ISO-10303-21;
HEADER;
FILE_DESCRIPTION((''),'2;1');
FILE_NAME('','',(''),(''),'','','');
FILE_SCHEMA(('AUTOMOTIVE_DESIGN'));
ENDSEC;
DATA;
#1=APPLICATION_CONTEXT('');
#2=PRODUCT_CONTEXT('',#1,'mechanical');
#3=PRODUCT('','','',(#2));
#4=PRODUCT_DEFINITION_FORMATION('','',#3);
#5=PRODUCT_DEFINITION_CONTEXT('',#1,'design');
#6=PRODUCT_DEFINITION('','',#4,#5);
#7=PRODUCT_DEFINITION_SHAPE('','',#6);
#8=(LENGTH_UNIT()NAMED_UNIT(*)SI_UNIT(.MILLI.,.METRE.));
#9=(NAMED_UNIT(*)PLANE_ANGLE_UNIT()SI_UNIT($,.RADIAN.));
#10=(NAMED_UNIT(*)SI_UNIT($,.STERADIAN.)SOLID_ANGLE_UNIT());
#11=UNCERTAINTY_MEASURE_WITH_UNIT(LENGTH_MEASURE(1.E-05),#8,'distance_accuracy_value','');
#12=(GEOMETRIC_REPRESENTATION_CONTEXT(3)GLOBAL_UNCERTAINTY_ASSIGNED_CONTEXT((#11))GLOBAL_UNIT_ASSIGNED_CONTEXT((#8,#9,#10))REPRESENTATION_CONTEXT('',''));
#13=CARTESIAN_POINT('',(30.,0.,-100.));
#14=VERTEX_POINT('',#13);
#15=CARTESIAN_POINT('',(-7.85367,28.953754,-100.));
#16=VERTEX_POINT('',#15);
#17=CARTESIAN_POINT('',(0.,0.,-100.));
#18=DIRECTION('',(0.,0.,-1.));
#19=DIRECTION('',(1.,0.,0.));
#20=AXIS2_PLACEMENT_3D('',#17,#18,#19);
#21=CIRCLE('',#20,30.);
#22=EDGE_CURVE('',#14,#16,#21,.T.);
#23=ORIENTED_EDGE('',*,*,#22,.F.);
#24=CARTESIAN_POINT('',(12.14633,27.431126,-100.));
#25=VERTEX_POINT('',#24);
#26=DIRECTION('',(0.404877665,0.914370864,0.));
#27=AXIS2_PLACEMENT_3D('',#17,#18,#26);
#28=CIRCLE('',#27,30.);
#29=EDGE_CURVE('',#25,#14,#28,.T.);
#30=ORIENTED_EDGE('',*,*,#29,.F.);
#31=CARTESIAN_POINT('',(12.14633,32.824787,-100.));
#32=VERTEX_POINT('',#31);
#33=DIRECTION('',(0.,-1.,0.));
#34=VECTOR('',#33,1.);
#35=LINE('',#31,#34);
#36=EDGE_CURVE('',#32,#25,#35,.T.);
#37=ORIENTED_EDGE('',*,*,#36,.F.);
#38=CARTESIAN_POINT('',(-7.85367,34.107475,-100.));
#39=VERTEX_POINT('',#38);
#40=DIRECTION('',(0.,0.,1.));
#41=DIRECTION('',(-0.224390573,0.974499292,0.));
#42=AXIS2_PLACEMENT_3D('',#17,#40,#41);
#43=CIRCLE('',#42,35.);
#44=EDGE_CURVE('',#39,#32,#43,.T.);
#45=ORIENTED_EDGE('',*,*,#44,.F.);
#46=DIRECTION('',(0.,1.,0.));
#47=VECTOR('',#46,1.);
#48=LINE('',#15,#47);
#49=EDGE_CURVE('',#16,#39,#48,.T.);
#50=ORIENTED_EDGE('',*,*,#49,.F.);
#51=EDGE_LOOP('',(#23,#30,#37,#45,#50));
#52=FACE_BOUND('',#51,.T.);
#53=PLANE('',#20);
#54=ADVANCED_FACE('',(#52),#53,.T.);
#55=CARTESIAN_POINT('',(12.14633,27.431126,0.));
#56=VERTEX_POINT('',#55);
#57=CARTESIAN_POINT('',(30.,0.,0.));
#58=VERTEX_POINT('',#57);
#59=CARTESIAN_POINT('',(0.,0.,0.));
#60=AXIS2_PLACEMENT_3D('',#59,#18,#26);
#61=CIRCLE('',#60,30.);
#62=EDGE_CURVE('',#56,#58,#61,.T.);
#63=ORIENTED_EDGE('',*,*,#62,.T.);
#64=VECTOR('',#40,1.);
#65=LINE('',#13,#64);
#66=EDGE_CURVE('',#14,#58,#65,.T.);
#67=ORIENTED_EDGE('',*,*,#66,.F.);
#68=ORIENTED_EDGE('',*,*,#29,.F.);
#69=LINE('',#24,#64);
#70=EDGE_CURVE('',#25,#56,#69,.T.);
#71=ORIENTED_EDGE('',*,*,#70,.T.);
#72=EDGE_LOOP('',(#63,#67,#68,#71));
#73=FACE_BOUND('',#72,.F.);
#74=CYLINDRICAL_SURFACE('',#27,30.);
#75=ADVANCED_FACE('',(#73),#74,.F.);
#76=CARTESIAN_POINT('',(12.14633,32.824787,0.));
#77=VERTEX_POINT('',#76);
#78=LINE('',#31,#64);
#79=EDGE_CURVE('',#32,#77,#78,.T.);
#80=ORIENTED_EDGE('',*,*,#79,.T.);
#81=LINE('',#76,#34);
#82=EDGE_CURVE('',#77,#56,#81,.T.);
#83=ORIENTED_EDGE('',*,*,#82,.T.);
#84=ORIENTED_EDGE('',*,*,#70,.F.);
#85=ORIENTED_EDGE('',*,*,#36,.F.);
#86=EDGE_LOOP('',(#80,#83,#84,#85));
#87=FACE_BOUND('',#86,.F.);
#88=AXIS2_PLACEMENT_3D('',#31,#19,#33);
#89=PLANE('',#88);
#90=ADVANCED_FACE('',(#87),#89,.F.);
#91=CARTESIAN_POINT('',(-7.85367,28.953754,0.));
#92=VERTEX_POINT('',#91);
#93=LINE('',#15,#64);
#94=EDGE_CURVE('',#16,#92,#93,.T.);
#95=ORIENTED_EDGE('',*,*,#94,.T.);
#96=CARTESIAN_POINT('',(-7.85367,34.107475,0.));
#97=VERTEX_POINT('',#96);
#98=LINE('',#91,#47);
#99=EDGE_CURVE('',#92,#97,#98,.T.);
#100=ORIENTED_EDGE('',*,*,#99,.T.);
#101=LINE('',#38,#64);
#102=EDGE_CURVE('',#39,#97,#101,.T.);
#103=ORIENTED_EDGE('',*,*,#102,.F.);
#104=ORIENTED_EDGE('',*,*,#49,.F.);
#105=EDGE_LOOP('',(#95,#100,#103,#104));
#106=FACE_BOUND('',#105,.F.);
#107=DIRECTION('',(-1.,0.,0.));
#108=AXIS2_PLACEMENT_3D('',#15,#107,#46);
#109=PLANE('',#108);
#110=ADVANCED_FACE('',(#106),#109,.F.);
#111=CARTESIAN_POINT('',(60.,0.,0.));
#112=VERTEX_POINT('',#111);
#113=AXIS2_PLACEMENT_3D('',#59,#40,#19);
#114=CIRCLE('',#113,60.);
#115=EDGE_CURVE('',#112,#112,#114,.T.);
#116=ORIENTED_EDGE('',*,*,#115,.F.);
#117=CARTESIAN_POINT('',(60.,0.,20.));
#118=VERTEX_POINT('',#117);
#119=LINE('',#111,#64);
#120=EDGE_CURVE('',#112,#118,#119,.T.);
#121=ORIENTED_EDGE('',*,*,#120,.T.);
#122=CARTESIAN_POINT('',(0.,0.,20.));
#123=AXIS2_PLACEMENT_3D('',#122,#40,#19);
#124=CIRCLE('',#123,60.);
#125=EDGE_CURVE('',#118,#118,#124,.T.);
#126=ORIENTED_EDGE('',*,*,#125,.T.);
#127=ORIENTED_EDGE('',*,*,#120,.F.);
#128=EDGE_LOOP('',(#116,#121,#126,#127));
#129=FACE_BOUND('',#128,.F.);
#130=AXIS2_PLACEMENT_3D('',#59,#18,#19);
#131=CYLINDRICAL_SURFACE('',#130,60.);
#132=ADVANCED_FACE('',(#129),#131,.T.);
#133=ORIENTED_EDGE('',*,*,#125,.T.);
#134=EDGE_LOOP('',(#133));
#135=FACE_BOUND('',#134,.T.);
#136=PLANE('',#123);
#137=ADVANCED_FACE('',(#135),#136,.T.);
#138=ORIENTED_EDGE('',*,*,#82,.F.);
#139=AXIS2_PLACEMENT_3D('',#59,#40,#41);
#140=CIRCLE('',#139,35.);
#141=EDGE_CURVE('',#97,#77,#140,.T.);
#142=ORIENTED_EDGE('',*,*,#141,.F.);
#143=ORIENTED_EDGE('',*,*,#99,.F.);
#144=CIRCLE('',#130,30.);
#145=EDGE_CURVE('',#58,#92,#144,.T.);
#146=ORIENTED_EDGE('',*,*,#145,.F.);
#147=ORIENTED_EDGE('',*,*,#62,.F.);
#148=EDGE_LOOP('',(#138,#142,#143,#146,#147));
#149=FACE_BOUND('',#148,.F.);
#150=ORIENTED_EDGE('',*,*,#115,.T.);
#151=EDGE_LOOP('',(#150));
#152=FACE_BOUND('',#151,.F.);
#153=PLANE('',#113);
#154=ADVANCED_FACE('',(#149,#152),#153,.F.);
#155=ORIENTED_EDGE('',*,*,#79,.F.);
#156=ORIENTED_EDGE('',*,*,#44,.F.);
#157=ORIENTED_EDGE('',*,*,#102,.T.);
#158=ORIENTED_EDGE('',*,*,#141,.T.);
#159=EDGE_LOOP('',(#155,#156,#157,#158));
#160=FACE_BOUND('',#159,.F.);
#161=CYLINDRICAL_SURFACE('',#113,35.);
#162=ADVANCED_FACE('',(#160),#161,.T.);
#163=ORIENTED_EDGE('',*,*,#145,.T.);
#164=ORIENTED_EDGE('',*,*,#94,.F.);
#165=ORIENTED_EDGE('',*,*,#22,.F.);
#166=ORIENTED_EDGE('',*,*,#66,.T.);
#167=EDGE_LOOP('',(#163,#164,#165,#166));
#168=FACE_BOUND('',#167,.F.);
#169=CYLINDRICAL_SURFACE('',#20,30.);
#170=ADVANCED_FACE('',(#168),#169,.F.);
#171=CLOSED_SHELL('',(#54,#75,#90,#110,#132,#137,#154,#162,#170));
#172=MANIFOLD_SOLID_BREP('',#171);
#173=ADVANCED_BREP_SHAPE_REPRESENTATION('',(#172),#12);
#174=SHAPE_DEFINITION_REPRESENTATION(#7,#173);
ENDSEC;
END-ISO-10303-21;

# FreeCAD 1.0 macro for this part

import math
import FreeCAD as App
import Part
import Sketcher

V = App.Vector
Q = App.Units.Quantity

doc = App.newDocument("Part")
params = doc.addObject("Spreadsheet::Sheet", "Params")
for row, (alias, value) in enumerate([
    ("sketch1_diameter", "120 mm"),
    ("pad1_length", "20 mm"),
    ("sketch2_diameter", "70 mm"),
    ("pad2_length", "100 mm"),
    ("sketch3_radius", "30 mm"),
    ("sketch3_radius2", "35 mm"),
    ("pocket1_length", "100 mm"),
], start=1):
    params.set(f"A{row}", alias)
    params.set(f"B{row}", "=" + value)
    params.setAlias(f"B{row}", alias)

body = doc.addObject("PartDesign::Body", "Body")

sketch1 = body.newObject("Sketcher::SketchObject", "Sketch")
sketch1.AttachmentSupport = (doc.getObject("XY_Plane"), [""])
sketch1.MapMode = "FlatFace"
sketch1.addGeometry(Part.Circle(V(0, 0, 0), V(0, 0, 1), 60), False)
sketch1.addConstraint(Sketcher.Constraint("Coincident", 0, 3, -1, 1))
sketch1.addConstraint(Sketcher.Constraint("Diameter", 0, Q("120 mm")))
sketch1.setExpression("Constraints[1]", "Params.sketch1_diameter")
pad1 = body.newObject("PartDesign::Pad", "Pad")
pad1.Profile = sketch1
pad1.setExpression("Length", "Params.pad1_length")

sketch2 = body.newObject("Sketcher::SketchObject", "Sketch001")
sketch2.AttachmentSupport = (doc.getObject("XY_Plane"), [""])
sketch2.MapMode = "FlatFace"
sketch2.addGeometry(Part.Circle(V(0, 0, 0), V(0, 0, 1), 35), False)
sketch2.addConstraint(Sketcher.Constraint("Coincident", 0, 3, -1, 1))
sketch2.addConstraint(Sketcher.Constraint("Diameter", 0, Q("70 mm")))
sketch2.setExpression("Constraints[1]", "Params.sketch2_diameter")
pad2 = body.newObject("PartDesign::Pad", "Pad001")
pad2.Profile = sketch2
pad2.setExpression("Length", "Params.pad2_length")
pad2.Reversed = True

sketch3 = body.newObject("Sketcher::SketchObject", "Sketch002")
sketch3.AttachmentSupport = (doc.getObject("XY_Plane"), [""])
sketch3.MapMode = "FlatFace"
sketch3.AttachmentOffset = App.Placement(V(0, 0, -100), App.Rotation())
sketch3.addGeometry(Part.ArcOfCircle(Part.Circle(V(0, 0, 0), V(0, 0, 1), 30), math.radians(0), math.radians(66)), False)
sketch3.addGeometry(Part.ArcOfCircle(Part.Circle(V(0, 0, 0), V(0, 0, 1), 30), math.radians(105), math.radians(360)), False)
sketch3.addGeometry(Part.LineSegment(V(-8, 29, 0), V(-8, 34, 0)), False)
sketch3.addGeometry(Part.ArcOfCircle(Part.Circle(V(0, 0, 0), V(0, 0, 1), 35), math.radians(70), math.radians(103)), False)
sketch3.addGeometry(Part.LineSegment(V(12, 33, 0), V(12, 27, 0)), False)
sketch3.addConstraint(Sketcher.Constraint("Tangent", 0, 1, 1, 2))
sketch3.addConstraint(Sketcher.Constraint("Coincident", 1, 1, 2, 1))
sketch3.addConstraint(Sketcher.Constraint("Coincident", 2, 2, 3, 2))
sketch3.addConstraint(Sketcher.Constraint("Coincident", 3, 1, 4, 1))
sketch3.addConstraint(Sketcher.Constraint("Coincident", 4, 2, 0, 2))
sketch3.addConstraint(Sketcher.Constraint("Vertical", 2))
sketch3.addConstraint(Sketcher.Constraint("Vertical", 4))
sketch3.addConstraint(Sketcher.Constraint("Coincident", 0, 3, -1, 1))
sketch3.addConstraint(Sketcher.Constraint("Coincident", 3, 3, -1, 1))
sketch3.addConstraint(Sketcher.Constraint("Equal", 0, 1))
sketch3.addConstraint(Sketcher.Constraint("PointOnObject", 0, 1, -1))
sketch3.addConstraint(Sketcher.Constraint("Radius", 0, Q("30 mm")))
sketch3.addConstraint(Sketcher.Constraint("Radius", 3, Q("35 mm")))
sketch3.addConstraint(Sketcher.Constraint("DistanceX", 2, 2, 3, 1, Q("20 mm")))
sketch3.addConstraint(Sketcher.Constraint("DistanceY", 2, 1, 2, 2, Q("5.153721 mm")))
sketch3.setExpression("Constraints[11]", "Params.sketch3_radius")
sketch3.setExpression("Constraints[12]", "Params.sketch3_radius2")
pocket1 = body.newObject("PartDesign::Pocket", "Pocket")
pocket1.Profile = sketch3
pocket1.setExpression("Length", "Params.pocket1_length")
pocket1.Reversed = True

doc.recompute()
